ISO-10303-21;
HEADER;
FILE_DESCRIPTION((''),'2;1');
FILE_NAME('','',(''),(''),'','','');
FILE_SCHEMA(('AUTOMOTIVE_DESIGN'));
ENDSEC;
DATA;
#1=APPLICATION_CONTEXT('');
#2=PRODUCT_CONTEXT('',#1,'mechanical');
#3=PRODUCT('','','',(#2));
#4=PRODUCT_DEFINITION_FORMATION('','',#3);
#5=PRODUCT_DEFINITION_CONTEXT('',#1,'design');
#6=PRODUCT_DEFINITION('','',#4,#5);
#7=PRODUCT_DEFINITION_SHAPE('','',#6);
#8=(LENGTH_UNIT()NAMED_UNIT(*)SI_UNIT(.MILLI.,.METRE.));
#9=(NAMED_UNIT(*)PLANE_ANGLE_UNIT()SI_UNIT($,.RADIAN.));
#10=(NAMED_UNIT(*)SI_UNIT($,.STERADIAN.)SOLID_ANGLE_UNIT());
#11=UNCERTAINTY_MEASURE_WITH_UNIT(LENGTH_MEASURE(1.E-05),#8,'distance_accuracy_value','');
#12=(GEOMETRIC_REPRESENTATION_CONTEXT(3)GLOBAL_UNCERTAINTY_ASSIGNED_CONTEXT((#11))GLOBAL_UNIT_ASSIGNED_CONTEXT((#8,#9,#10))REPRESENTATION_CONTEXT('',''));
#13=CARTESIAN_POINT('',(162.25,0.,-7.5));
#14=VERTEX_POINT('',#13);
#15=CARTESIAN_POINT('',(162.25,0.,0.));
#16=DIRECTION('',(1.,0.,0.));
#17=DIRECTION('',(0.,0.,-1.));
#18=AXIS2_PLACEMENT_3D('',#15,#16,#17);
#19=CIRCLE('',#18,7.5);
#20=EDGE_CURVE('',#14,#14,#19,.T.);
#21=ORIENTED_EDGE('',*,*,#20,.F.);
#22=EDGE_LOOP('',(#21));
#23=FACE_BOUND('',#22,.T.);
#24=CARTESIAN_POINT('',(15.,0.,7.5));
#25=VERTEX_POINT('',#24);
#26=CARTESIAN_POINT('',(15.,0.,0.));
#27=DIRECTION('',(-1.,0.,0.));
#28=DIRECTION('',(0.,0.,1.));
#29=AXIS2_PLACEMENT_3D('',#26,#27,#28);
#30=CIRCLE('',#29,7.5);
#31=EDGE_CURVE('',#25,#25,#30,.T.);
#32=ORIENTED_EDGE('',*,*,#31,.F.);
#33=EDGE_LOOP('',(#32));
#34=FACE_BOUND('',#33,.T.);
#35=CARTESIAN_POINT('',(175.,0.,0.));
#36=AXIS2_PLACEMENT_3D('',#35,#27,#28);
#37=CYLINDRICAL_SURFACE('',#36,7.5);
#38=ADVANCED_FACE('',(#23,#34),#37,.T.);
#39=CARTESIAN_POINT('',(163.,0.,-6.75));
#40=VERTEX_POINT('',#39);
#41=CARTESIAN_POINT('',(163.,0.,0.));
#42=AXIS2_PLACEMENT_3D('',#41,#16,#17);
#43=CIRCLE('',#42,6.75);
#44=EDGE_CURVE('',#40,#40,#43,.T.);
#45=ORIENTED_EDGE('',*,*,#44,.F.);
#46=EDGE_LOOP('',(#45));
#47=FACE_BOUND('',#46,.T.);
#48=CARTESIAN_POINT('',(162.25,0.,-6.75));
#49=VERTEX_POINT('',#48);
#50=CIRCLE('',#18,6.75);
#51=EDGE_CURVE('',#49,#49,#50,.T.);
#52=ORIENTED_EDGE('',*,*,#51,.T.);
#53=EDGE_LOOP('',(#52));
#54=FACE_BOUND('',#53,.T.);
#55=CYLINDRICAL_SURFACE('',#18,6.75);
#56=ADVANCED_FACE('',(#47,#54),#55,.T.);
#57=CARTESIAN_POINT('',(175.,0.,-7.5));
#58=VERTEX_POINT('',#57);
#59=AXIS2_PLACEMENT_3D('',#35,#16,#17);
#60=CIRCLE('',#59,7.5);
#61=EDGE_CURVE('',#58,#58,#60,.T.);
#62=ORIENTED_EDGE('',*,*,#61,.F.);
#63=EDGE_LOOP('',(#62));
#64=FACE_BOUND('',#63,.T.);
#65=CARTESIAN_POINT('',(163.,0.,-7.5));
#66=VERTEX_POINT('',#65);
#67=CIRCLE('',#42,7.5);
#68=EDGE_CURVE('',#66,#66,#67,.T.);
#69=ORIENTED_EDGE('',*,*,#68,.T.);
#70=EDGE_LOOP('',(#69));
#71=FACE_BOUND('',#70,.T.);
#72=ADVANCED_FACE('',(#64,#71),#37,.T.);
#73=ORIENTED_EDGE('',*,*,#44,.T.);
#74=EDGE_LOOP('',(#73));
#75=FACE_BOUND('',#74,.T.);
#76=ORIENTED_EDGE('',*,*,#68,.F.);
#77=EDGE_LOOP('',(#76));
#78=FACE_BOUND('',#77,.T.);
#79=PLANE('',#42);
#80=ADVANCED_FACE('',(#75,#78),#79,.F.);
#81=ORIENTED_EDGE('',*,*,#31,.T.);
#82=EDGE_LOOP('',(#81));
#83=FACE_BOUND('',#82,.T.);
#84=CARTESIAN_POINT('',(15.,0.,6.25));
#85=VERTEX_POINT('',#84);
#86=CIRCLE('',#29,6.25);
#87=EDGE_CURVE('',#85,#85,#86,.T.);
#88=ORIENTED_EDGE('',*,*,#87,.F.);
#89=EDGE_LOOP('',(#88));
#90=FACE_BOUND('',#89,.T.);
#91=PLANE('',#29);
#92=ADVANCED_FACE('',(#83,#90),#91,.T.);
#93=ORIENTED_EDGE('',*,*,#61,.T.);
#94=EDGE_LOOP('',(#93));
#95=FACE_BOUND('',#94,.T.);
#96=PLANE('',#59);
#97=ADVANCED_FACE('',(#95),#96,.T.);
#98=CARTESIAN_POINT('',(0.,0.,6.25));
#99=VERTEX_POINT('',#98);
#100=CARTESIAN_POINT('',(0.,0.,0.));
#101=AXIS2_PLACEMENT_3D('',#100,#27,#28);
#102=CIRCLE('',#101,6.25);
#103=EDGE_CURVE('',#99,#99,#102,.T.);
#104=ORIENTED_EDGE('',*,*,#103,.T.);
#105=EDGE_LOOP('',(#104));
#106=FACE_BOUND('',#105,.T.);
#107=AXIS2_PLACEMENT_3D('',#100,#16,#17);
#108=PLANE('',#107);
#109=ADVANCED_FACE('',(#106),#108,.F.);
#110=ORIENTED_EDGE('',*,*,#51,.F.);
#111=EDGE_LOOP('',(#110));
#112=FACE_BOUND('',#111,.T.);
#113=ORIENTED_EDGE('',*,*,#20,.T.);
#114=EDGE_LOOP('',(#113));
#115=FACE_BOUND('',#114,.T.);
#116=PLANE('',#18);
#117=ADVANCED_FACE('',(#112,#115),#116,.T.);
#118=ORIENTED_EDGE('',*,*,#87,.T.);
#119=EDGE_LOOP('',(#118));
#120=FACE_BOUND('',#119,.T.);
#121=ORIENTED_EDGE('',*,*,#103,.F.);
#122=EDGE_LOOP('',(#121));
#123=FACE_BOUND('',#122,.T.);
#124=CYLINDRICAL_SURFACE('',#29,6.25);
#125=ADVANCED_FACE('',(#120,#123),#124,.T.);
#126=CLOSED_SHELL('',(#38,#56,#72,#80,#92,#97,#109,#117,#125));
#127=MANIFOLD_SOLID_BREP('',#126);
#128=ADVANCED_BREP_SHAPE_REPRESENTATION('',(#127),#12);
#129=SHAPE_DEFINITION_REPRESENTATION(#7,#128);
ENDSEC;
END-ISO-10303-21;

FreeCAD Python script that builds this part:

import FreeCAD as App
import Part
import Sketcher

doc = App.newDocument("Part")
body = doc.addObject("PartDesign::Body", "Body")

# Sketch on YZ plane
sketch1 = body.newObject("Sketcher::SketchObject", "Sketch")
sketch1.AttachmentSupport = (doc.getObject("YZ_Plane"), [""])
sketch1.MapMode = "FlatFace"
sketch1.addGeometry(Part.Circle(App.Vector(0, 0, 0), App.Vector(0, 0, 1), 7.5), False)
sketch1.addConstraint([
    Sketcher.Constraint("Coincident", 0, 3, -1, 1),
    Sketcher.Constraint("Diameter", 0, 15.0),
])
pad1 = body.newObject("PartDesign::Pad", "Pad")
pad1.Profile = sketch1
pad1.Length = 175

# Sketch on YZ plane
sketch2 = body.newObject("Sketcher::SketchObject", "Sketch001")
sketch2.AttachmentSupport = (doc.getObject("YZ_Plane"), [""])
sketch2.MapMode = "FlatFace"
sketch2.AttachmentOffset = App.Placement(App.Vector(0, 0, 162.25), App.Rotation())
sketch2.addGeometry([
    Part.Circle(App.Vector(0, 0, 0), App.Vector(0, 0, 1), 7.5),
    Part.Circle(App.Vector(0, 0, 0), App.Vector(0, 0, 1), 6.75),
], False)
sketch2.addConstraint([
    Sketcher.Constraint("Coincident", 0, 3, -1, 1),
    Sketcher.Constraint("Coincident", 1, 3, -1, 1),
    Sketcher.Constraint("Diameter", 0, 15.0),
    Sketcher.Constraint("Diameter", 1, 13.5),
])
pocket1 = body.newObject("PartDesign::Pocket", "Pocket")
pocket1.Profile = sketch2
pocket1.Length = 0.75
pocket1.Reversed = True

# Sketch on YZ plane
sketch3 = body.newObject("Sketcher::SketchObject", "Sketch002")
sketch3.AttachmentSupport = (doc.getObject("YZ_Plane"), [""])
sketch3.MapMode = "FlatFace"
sketch3.addGeometry([
    Part.Circle(App.Vector(0, 0, 0), App.Vector(0, 0, 1), 7.5),
    Part.Circle(App.Vector(0, 0, 0), App.Vector(0, 0, 1), 6.25),
], False)
sketch3.addConstraint([
    Sketcher.Constraint("Coincident", 0, 3, -1, 1),
    Sketcher.Constraint("Coincident", 1, 3, -1, 1),
    Sketcher.Constraint("Diameter", 0, 15.0),
    Sketcher.Constraint("Diameter", 1, 12.5),
])
pocket2 = body.newObject("PartDesign::Pocket", "Pocket001")
pocket2.Profile = sketch3
pocket2.Length = 15
pocket2.Reversed = True

doc.recompute()
